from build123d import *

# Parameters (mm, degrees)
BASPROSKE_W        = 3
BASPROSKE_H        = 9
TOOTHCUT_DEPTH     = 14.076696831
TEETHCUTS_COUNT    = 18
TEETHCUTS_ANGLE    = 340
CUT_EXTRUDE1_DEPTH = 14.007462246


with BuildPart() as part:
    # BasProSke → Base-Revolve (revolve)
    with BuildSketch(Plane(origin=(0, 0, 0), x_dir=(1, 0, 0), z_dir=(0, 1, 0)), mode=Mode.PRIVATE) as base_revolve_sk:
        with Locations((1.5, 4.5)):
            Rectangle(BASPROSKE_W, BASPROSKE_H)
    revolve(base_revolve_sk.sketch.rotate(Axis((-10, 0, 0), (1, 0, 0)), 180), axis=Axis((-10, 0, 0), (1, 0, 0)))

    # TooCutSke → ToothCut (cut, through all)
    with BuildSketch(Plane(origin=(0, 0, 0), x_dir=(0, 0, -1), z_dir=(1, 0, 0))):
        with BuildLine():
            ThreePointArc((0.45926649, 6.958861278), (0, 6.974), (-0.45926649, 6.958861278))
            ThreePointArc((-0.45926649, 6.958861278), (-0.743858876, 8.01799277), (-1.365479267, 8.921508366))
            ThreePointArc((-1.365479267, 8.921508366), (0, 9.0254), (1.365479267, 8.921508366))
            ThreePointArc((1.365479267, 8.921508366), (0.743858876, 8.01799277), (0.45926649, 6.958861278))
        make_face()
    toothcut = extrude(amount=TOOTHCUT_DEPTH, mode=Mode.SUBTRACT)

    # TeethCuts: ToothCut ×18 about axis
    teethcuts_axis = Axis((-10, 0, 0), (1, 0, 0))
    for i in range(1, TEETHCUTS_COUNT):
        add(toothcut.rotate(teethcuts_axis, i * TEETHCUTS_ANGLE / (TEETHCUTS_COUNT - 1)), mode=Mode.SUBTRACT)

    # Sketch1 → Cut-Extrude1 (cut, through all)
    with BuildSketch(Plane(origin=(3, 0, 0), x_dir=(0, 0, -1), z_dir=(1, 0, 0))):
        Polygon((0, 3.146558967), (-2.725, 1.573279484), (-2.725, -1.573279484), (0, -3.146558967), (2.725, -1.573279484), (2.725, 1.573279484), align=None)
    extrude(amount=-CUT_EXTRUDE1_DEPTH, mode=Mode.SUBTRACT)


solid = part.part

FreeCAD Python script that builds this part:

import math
import FreeCAD as App
import Part
import Sketcher
Q = App.Units.Quantity


def add_polygon(sketch, points):
    """Adds a closed chain of lines whose ends are joined by coincident constraints."""
    first, n = sketch.GeometryCount, len(points)
    for a, b in zip(points, points[1:] + points[:1]):
        sketch.addGeometry(Part.LineSegment(App.Vector(*a, 0), App.Vector(*b, 0)), False)
    for i in range(n):
        sketch.addConstraint(Sketcher.Constraint("Coincident", first + i, 2, first + (i + 1) % n, 1))

doc = App.newDocument("Part")
body = doc.addObject("PartDesign::Body", "Body")

# Sketch on XZ plane
sketch1 = doc.addObject("Sketcher::SketchObject", "Sketch")
body.addObject(sketch1)
sketch1.AttachmentSupport = (doc.XZ_Plane, [""])
sketch1.MapMode = "FlatFace"
add_polygon(sketch1, [(0, -9), (0, 0), (3, 0), (3, -9)])  # lines 0-3
sketch1.addConstraint(Sketcher.Constraint("Vertical", 0))
sketch1.addConstraint(Sketcher.Constraint("Horizontal", 1))
sketch1.addConstraint(Sketcher.Constraint("Vertical", 2))
sketch1.addConstraint(Sketcher.Constraint("Horizontal", 3))
sketch1.addConstraint(Sketcher.Constraint("Coincident", 0, 2, -1, 1))
sketch1.addConstraint(Sketcher.Constraint("DistanceX", 1, 1, 1, 2, 3.0))
sketch1.addConstraint(Sketcher.Constraint("DistanceY", 0, 1, 0, 2, 9.0))
revolution = doc.addObject("PartDesign::Revolution", "Revolution")
body.addObject(revolution)
revolution.Profile = sketch1
revolution.ReferenceAxis = (sketch1, ["H_Axis"])
revolution.Angle = 360

# Sketch on YZ plane
sketch2 = doc.addObject("Sketcher::SketchObject", "Sketch001")
body.addObject(sketch2)
sketch2.AttachmentSupport = (doc.YZ_Plane, [""])
sketch2.MapMode = "FlatFace"
sketch2.addGeometry(Part.ArcOfCircle(Part.Circle(App.Vector(0, 0, 0), App.Vector(0, 0, 1), 7), math.radians(-3.78), math.radians(3.78)), False)
sketch2.addGeometry(Part.ArcOfCircle(Part.Circle(App.Vector(6.7, -3.7, 0), App.Vector(0, 0, 1), 3.2), math.radians(46), math.radians(85)), False)
sketch2.addGeometry(Part.ArcOfCircle(Part.Circle(App.Vector(0, 0, 0), App.Vector(0, 0, 1), 9), math.radians(-8.7), math.radians(8.7)), False)
sketch2.addGeometry(Part.ArcOfCircle(Part.Circle(App.Vector(6.7, 3.7, 0), App.Vector(0, 0, 1), 3.2), math.radians(-85), math.radians(-46)), False)
sketch2.addConstraint(Sketcher.Constraint("Coincident", 0, 1, 1, 2))
sketch2.addConstraint(Sketcher.Constraint("Coincident", 1, 1, 2, 1))
sketch2.addConstraint(Sketcher.Constraint("Coincident", 2, 2, 3, 2))
sketch2.addConstraint(Sketcher.Constraint("Coincident", 3, 1, 0, 2))
sketch2.addConstraint(Sketcher.Constraint("Coincident", 0, 3, -1, 1))
sketch2.addConstraint(Sketcher.Constraint("Coincident", 2, 3, -1, 1))
sketch2.addConstraint(Sketcher.Constraint("Equal", 1, 3))
sketch2.addConstraint(Sketcher.Constraint("Symmetric", 1, 3, 3, 3, -1))
sketch2.addConstraint(Sketcher.Constraint("Radius", 1, 3.24))
sketch2.addConstraint(Sketcher.Constraint("Radius", 0, 6.974))
sketch2.addConstraint(Sketcher.Constraint("Radius", 2, 9.0254))
sketch2.addConstraint(Sketcher.Constraint("DistanceY", 0, 1, 3, 3, 4.1447))
sketch2.addConstraint(Sketcher.Constraint("DistanceX", -1, 1, 1, 3, 6.65978))
pocket1 = doc.addObject("PartDesign::Pocket", "Pocket")
body.addObject(pocket1)
pocket1.Profile = sketch2
pocket1.Type = "ThroughAll"
pocket1.Reversed = True
doc.recompute()

polarpattern = doc.addObject("PartDesign::PolarPattern", "PolarPattern")
body.addObject(polarpattern)
polarpattern.Originals = [pocket1]
polarpattern.Axis = (doc.X_Axis, [""])
polarpattern.Angle = 360
polarpattern.Occurrences = 18
body.Tip = polarpattern

# Sketch on YZ plane
sketch3 = doc.addObject("Sketcher::SketchObject", "Sketch002")
body.addObject(sketch3)
sketch3.AttachmentSupport = (doc.YZ_Plane, [""])
sketch3.MapMode = "FlatFace"
sketch3.AttachmentOffset = App.Placement(App.Vector(0, 0, 3), App.Rotation())
add_polygon(sketch3, [(3.1, 0), (1.6, 2.7), (-1.6, 2.7), (-3.1, 0), (-1.6, -2.7), (1.6, -2.7)])  # lines 0-5
sketch3.addConstraint(Sketcher.Constraint("Horizontal", 1))
sketch3.addConstraint(Sketcher.Constraint("Horizontal", 4))
sketch3.addConstraint(Sketcher.Constraint("Symmetric", 0, 2, 3, 2, -1, 1))
sketch3.addConstraint(Sketcher.Constraint("Symmetric", 2, 2, 5, 2, -1, 1))
sketch3.addConstraint(Sketcher.Constraint("PointOnObject", 2, 2, -1))
sketch3.addConstraint(Sketcher.Constraint("Parallel", 2, 5))
sketch3.addConstraint(Sketcher.Constraint("Vertical", 1, 2, 3, 2))
sketch3.addConstraint(Sketcher.Constraint("Angle", 0, Q("120 deg")))
sketch3.addConstraint(Sketcher.Constraint("DistanceY", 3, 2, 1, 2, 5.45))
sketch3.addConstraint(Sketcher.Constraint("DistanceX", 1, 2, 1, 1, 3.146559))
pocket2 = doc.addObject("PartDesign::Pocket", "Pocket001")
body.addObject(pocket2)
pocket2.Profile = sketch3
pocket2.Type = "ThroughAll"

doc.recompute()
